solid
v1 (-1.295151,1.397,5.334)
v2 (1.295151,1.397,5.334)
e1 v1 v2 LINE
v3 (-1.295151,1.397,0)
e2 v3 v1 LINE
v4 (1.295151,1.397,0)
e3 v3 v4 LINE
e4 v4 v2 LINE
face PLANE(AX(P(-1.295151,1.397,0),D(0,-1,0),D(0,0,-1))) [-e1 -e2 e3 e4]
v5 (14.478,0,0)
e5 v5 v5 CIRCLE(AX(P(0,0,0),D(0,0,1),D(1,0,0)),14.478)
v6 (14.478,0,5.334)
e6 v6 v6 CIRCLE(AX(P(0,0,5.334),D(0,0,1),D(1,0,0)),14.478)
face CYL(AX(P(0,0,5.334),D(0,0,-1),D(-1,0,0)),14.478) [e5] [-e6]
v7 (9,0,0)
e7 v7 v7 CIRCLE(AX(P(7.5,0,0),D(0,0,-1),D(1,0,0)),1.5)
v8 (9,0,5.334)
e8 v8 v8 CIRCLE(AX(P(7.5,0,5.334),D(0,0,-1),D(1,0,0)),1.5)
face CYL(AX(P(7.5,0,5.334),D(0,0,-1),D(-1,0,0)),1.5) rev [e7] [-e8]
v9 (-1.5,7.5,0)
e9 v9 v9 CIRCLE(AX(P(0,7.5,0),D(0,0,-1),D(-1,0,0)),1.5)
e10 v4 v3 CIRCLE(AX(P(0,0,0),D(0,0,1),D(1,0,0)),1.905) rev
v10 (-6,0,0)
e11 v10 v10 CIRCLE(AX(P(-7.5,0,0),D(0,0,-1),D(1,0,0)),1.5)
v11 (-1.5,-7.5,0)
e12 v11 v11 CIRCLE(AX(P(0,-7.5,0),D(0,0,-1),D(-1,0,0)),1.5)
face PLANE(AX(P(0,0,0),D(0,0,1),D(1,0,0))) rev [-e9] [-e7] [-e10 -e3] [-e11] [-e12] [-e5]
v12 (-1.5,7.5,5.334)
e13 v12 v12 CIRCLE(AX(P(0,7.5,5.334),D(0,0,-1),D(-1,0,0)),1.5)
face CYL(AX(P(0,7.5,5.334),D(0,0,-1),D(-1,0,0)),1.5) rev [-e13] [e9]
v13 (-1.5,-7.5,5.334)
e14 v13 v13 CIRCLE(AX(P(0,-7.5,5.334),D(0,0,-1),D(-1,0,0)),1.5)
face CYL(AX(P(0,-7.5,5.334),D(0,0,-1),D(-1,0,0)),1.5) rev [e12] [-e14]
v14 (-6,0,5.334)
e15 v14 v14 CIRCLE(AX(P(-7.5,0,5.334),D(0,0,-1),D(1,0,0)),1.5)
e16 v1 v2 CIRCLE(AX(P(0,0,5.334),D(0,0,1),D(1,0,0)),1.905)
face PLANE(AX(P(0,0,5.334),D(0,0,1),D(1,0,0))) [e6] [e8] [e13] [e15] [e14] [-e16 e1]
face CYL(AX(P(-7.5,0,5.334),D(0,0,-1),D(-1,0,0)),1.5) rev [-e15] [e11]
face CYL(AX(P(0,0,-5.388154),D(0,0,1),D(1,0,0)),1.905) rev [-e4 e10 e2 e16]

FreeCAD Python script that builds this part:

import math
import FreeCAD as App
import Part
import Sketcher

V = App.Vector
Q = App.Units.Quantity

doc = App.newDocument("Part")
params = doc.addObject("Spreadsheet::Sheet", "Params")
for row, (alias, value) in enumerate([
    ("sketch1_diameter", "1.14 in"),
    ("pad1_length", "0.21 in"),
    ("sketch2_diameter", "0.15 in"),
    ("pocket1_length", "0.21 in"),
    ("sketch3_radius", "0.075 in"),
    ("pad2_length", "0.21 in"),
], start=1):
    params.set(f"A{row}", alias)
    params.set(f"B{row}", "=" + value)
    params.setAlias(f"B{row}", alias)

body = doc.addObject("PartDesign::Body", "Body")

# Sketch on XY plane
sketch1 = body.newObject("Sketcher::SketchObject", "Sketch")
sketch1.AttachmentSupport = (doc.getObject("XY_Plane"), [""])
sketch1.MapMode = "FlatFace"
sketch1.addGeometry(Part.Circle(V(0, 0, 0), V(0, 0, 1), 14), False)
sketch1.addConstraint(Sketcher.Constraint("Coincident", 0, 3, -1, 1))
sketch1.addConstraint(Sketcher.Constraint("Diameter", 0, Q("1.14 in")))
sketch1.setExpression("Constraints[1]", "Params.sketch1_diameter")
pad1 = body.newObject("PartDesign::Pad", "Pad")
pad1.Profile = sketch1
pad1.setExpression("Length", "Params.pad1_length")

# Sketch on XY plane
sketch2 = body.newObject("Sketcher::SketchObject", "Sketch001")
sketch2.AttachmentSupport = (doc.getObject("XY_Plane"), [""])
sketch2.MapMode = "FlatFace"
sketch2.AttachmentOffset = App.Placement(V(0, 0, 0.21 * 25.4), App.Rotation())
sketch2.addGeometry(Part.Circle(V(0, 0, 0), V(0, 0, 1), 1.9), False)
sketch2.addConstraint(Sketcher.Constraint("Coincident", 0, 3, -1, 1))
sketch2.addConstraint(Sketcher.Constraint("Diameter", 0, Q("0.15 in")))
sketch2.setExpression("Constraints[1]", "Params.sketch2_diameter")
pocket1 = body.newObject("PartDesign::Pocket", "Pocket")
pocket1.Profile = sketch2
pocket1.setExpression("Length", "Params.pocket1_length")

# Sketch on XY plane
sketch3 = body.newObject("Sketcher::SketchObject", "Sketch002")
sketch3.AttachmentSupport = (doc.getObject("XY_Plane"), [""])
sketch3.MapMode = "FlatFace"
sketch3.AttachmentOffset = App.Placement(V(0, 0, 0.21 * 25.4), App.Rotation())
sketch3.addGeometry(Part.LineSegment(V(-1.3, 1.4, 0), V(1.3, 1.4, 0)), False)
sketch3.addGeometry(Part.ArcOfCircle(Part.Circle(V(0, 0, 0), V(0, 0, 1), 1.9), math.radians(47), math.radians(133)), False)
sketch3.addConstraint(Sketcher.Constraint("Coincident", 0, 1, 1, 2))
sketch3.addConstraint(Sketcher.Constraint("Coincident", 1, 1, 0, 2))
sketch3.addConstraint(Sketcher.Constraint("Horizontal", 0))
sketch3.addConstraint(Sketcher.Constraint("Coincident", 1, 3, -1, 1))
sketch3.addConstraint(Sketcher.Constraint("Radius", 1, Q("0.075 in")))
sketch3.addConstraint(Sketcher.Constraint("DistanceY", -1, 1, 0, 1, Q("0.055 in")))
sketch3.setExpression("Constraints[4]", "Params.sketch3_radius")
pad2 = body.newObject("PartDesign::Pad", "Pad001")
pad2.Profile = sketch3
pad2.setExpression("Length", "Params.pad2_length")
pad2.Reversed = True

# Sketch on XY plane
sketch4 = body.newObject("Sketcher::SketchObject", "Sketch003")
sketch4.AttachmentSupport = (doc.getObject("XY_Plane"), [""])
sketch4.MapMode = "FlatFace"
sketch4.addGeometry(Part.Circle(V(0, -7.5, 0), V(0, 0, 1), 1.5), False)
sketch4.addGeometry(Part.Circle(V(-7.5, 0, 0), V(0, 0, 1), 1.5), False)
sketch4.addGeometry(Part.Circle(V(7.5, 0, 0), V(0, 0, 1), 1.5), False)
sketch4.addGeometry(Part.Circle(V(0, 7.5, 0), V(0, 0, 1), 1.5), False)
sketch4.addConstraint(Sketcher.Constraint("Equal", 0, 1))
sketch4.addConstraint(Sketcher.Constraint("Equal", 1, 2))
sketch4.addConstraint(Sketcher.Constraint("Equal", 2, 3))
sketch4.addConstraint(Sketcher.Constraint("Symmetric", 1, 3, 2, 3, -1, 1))
sketch4.addConstraint(Sketcher.Constraint("Symmetric", 0, 3, 3, 3, -1, 1))
sketch4.addConstraint(Sketcher.Constraint("PointOnObject", 0, 3, -2))
sketch4.addConstraint(Sketcher.Constraint("PointOnObject", 1, 3, -1))
sketch4.addConstraint(Sketcher.Constraint("Diameter", 0, Q("3 mm")))
sketch4.addConstraint(Sketcher.Constraint("DistanceY", 0, 3, -1, 1, Q("7.5 mm")))
sketch4.addConstraint(Sketcher.Constraint("DistanceX", 1, 3, -1, 1, Q("7.5 mm")))
pocket2 = body.newObject("PartDesign::Pocket", "Pocket001")
pocket2.Profile = sketch4
pocket2.Type = "ThroughAll"
pocket2.Reversed = True

doc.recompute()
